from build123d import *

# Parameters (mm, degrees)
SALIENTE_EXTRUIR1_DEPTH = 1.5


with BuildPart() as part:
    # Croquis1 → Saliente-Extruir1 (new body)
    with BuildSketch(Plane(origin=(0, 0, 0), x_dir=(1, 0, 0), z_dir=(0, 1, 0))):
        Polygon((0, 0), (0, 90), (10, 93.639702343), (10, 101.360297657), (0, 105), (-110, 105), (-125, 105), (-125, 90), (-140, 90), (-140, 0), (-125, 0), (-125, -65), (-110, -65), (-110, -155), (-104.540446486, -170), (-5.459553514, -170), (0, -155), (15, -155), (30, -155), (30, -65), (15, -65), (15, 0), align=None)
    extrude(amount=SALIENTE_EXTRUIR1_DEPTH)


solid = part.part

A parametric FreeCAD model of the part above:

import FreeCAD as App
import Part
import Sketcher

V = App.Vector
Q = App.Units.Quantity


def add_polygon(sketch, points):
    """Adds a closed chain of lines whose ends are joined by coincident constraints."""
    first, n = sketch.GeometryCount, len(points)
    for a, b in zip(points, points[1:] + points[:1]):
        sketch.addGeometry(Part.LineSegment(App.Vector(*a, 0), App.Vector(*b, 0)), False)
    for i in range(n):
        sketch.addConstraint(Sketcher.Constraint("Coincident", first + i, 2, first + (i + 1) % n, 1))

doc = App.newDocument("Part")
body = doc.addObject("PartDesign::Body", "Body")

# Sketch on XZ plane
sketch1 = body.newObject("Sketcher::SketchObject", "Sketch")
sketch1.AttachmentSupport = (doc.getObject("XZ_Plane"), [""])
sketch1.MapMode = "FlatFace"
add_polygon(sketch1, [(0, 0), (0, -90), (10, -94), (10, -101), (0, -105), (-125, -105), (-125, -90), (-140, -90), (-140, 0), (-125, 0), (-125, 65), (-110, 65), (-110, 155), (-105, 170), (-5, 170), (0, 155), (30, 155), (30, 65), (15, 65), (15, 0)])  # lines 0-19
sketch1.addConstraint(Sketcher.Constraint("Vertical", 0))
sketch1.addConstraint(Sketcher.Constraint("Vertical", 2))
sketch1.addConstraint(Sketcher.Constraint("Horizontal", 4))
sketch1.addConstraint(Sketcher.Constraint("Vertical", 5))
sketch1.addConstraint(Sketcher.Constraint("Horizontal", 6))
sketch1.addConstraint(Sketcher.Constraint("Vertical", 7))
sketch1.addConstraint(Sketcher.Constraint("Horizontal", 8))
sketch1.addConstraint(Sketcher.Constraint("Vertical", 9))
sketch1.addConstraint(Sketcher.Constraint("Horizontal", 10))
sketch1.addConstraint(Sketcher.Constraint("Vertical", 11))
sketch1.addConstraint(Sketcher.Constraint("Horizontal", 13))
sketch1.addConstraint(Sketcher.Constraint("Horizontal", 15))
sketch1.addConstraint(Sketcher.Constraint("Vertical", 16))
sketch1.addConstraint(Sketcher.Constraint("Horizontal", 17))
sketch1.addConstraint(Sketcher.Constraint("Vertical", 18))
sketch1.addConstraint(Sketcher.Constraint("Horizontal", 19))
sketch1.addConstraint(Sketcher.Constraint("Coincident", 19, 2, -1, 1))
sketch1.addConstraint(Sketcher.Constraint("PointOnObject", 3, 2, -2))
sketch1.addConstraint(Sketcher.Constraint("PointOnObject", 7, 2, -1))
sketch1.addConstraint(Sketcher.Constraint("PointOnObject", 14, 2, -2))
sketch1.addConstraint(Sketcher.Constraint("Perpendicular", 1, 12))
sketch1.addConstraint(Sketcher.Constraint("Perpendicular", 3, 14))
sketch1.addConstraint(Sketcher.Constraint("Horizontal", 0, 2, 5, 2))
sketch1.addConstraint(Sketcher.Constraint("Horizontal", 11, 2, 14, 2))
sketch1.addConstraint(Sketcher.Constraint("Horizontal", 10, 2, 16, 2))
sketch1.addConstraint(Sketcher.Constraint("Vertical", 5, 2, 8, 2))
sketch1.addConstraint(Sketcher.Constraint("Equal", 8, 10))
sketch1.addConstraint(Sketcher.Constraint("Equal", 10, 17))
sketch1.addConstraint(Sketcher.Constraint("Equal", 17, 19))
sketch1.addConstraint(Sketcher.Constraint("Equal", 19, 5))
sketch1.addConstraint(Sketcher.Constraint("Equal", 7, 11))
sketch1.addConstraint(Sketcher.Constraint("Equal", 1, 3))
sketch1.addConstraint(Sketcher.Constraint("DistanceX", 4, 2, 4, 1, 125.0))
sketch1.addConstraint(Sketcher.Constraint("DistanceX", 6, 2, 6, 1, 15.0))
sketch1.addConstraint(Sketcher.Constraint("DistanceY", 0, 2, 0, 1, 90.0))
sketch1.addConstraint(Sketcher.Constraint("DistanceY", 9, 1, 9, 2, 65.0))
sketch1.addConstraint(Sketcher.Constraint("Angle", 1, Q("-20 deg")))
sketch1.addConstraint(Sketcher.Constraint("DistanceX", -1, 1, 1, 2, 10.0))
sketch1.addConstraint(Sketcher.Constraint("DistanceY", -1, 1, 12, 2, 170.0))
pad1 = body.newObject("PartDesign::Pad", "Pad")
pad1.Profile = sketch1
pad1.Length = 1.5
pad1.Reversed = True

doc.recompute()
